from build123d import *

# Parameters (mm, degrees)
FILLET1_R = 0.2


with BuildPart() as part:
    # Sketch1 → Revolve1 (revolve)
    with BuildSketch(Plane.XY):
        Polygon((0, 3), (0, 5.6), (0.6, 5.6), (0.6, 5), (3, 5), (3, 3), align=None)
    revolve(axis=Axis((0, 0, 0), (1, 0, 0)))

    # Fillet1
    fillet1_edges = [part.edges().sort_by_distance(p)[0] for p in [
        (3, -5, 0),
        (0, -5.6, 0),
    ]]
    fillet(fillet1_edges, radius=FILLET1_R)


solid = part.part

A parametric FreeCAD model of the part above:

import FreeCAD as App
import Part
import Sketcher
from FreeCAD import Vector
Q = App.Units.Quantity


def edges_at(feature, points):
    """Names of the edges that pass closest to the given points."""
    edges = feature.Shape.Edges
    near = lambda p: min(range(len(edges)), key=lambda i: edges[i].distToShape(Part.Vertex(*p))[0])
    return sorted({f"Edge{near(p) + 1}" for p in points})


def add_polygon(sketch, points):
    """Adds a closed chain of lines whose ends are joined by coincident constraints."""
    first, n = sketch.GeometryCount, len(points)
    for a, b in zip(points, points[1:] + points[:1]):
        sketch.addGeometry(Part.LineSegment(App.Vector(*a, 0), App.Vector(*b, 0)), False)
    for i in range(n):
        sketch.addConstraint(Sketcher.Constraint("Coincident", first + i, 2, first + (i + 1) % n, 1))

doc = App.newDocument("Part")
body = doc.addObject("PartDesign::Body", "Body")

# Sketch on XY plane
sketch1 = body.newObject("Sketcher::SketchObject", "Sketch")
sketch1.AttachmentSupport = (doc.getObject("XY_Plane"), [""])
sketch1.MapMode = "FlatFace"
add_polygon(sketch1, [(0, 5.6), (0, 3), (3, 3), (3, 5), (0.6, 5), (0.6, 5.6)])  # lines 0-5
sketch1.addConstraint(Sketcher.Constraint("Vertical", 0))
sketch1.addConstraint(Sketcher.Constraint("Horizontal", 1))
sketch1.addConstraint(Sketcher.Constraint("Vertical", 2))
sketch1.addConstraint(Sketcher.Constraint("Horizontal", 3))
sketch1.addConstraint(Sketcher.Constraint("Vertical", 4))
sketch1.addConstraint(Sketcher.Constraint("Horizontal", 5))
sketch1.addConstraint(Sketcher.Constraint("PointOnObject", 0, 2, -2))
sketch1.addConstraint(Sketcher.Constraint("Equal", 5, 4))
sketch1.addConstraint(Sketcher.Constraint("DistanceX", 1, 1, 1, 2, Q("3 mm")))
sketch1.addConstraint(Sketcher.Constraint("DistanceY", 2, 1, 2, 2, Q("2 mm")))
sketch1.addConstraint(Sketcher.Constraint("DistanceX", 3, 2, 3, 1, Q("2.4 mm")))
sketch1.addConstraint(Sketcher.Constraint("DistanceY", -1, 1, 0, 2, Q("3 mm")))
revolution = body.newObject("PartDesign::Revolution", "Revolution")
revolution.Profile = sketch1
revolution.ReferenceAxis = (sketch1, ["H_Axis"])
revolution.Angle = 360
doc.recompute()

fillet = body.newObject("PartDesign::Fillet", "Fillet")
fillet.Base = (revolution, edges_at(revolution, [(3, -5, 0), (0, -5.6, 0)]))
fillet.Radius = 0.2

doc.recompute()
